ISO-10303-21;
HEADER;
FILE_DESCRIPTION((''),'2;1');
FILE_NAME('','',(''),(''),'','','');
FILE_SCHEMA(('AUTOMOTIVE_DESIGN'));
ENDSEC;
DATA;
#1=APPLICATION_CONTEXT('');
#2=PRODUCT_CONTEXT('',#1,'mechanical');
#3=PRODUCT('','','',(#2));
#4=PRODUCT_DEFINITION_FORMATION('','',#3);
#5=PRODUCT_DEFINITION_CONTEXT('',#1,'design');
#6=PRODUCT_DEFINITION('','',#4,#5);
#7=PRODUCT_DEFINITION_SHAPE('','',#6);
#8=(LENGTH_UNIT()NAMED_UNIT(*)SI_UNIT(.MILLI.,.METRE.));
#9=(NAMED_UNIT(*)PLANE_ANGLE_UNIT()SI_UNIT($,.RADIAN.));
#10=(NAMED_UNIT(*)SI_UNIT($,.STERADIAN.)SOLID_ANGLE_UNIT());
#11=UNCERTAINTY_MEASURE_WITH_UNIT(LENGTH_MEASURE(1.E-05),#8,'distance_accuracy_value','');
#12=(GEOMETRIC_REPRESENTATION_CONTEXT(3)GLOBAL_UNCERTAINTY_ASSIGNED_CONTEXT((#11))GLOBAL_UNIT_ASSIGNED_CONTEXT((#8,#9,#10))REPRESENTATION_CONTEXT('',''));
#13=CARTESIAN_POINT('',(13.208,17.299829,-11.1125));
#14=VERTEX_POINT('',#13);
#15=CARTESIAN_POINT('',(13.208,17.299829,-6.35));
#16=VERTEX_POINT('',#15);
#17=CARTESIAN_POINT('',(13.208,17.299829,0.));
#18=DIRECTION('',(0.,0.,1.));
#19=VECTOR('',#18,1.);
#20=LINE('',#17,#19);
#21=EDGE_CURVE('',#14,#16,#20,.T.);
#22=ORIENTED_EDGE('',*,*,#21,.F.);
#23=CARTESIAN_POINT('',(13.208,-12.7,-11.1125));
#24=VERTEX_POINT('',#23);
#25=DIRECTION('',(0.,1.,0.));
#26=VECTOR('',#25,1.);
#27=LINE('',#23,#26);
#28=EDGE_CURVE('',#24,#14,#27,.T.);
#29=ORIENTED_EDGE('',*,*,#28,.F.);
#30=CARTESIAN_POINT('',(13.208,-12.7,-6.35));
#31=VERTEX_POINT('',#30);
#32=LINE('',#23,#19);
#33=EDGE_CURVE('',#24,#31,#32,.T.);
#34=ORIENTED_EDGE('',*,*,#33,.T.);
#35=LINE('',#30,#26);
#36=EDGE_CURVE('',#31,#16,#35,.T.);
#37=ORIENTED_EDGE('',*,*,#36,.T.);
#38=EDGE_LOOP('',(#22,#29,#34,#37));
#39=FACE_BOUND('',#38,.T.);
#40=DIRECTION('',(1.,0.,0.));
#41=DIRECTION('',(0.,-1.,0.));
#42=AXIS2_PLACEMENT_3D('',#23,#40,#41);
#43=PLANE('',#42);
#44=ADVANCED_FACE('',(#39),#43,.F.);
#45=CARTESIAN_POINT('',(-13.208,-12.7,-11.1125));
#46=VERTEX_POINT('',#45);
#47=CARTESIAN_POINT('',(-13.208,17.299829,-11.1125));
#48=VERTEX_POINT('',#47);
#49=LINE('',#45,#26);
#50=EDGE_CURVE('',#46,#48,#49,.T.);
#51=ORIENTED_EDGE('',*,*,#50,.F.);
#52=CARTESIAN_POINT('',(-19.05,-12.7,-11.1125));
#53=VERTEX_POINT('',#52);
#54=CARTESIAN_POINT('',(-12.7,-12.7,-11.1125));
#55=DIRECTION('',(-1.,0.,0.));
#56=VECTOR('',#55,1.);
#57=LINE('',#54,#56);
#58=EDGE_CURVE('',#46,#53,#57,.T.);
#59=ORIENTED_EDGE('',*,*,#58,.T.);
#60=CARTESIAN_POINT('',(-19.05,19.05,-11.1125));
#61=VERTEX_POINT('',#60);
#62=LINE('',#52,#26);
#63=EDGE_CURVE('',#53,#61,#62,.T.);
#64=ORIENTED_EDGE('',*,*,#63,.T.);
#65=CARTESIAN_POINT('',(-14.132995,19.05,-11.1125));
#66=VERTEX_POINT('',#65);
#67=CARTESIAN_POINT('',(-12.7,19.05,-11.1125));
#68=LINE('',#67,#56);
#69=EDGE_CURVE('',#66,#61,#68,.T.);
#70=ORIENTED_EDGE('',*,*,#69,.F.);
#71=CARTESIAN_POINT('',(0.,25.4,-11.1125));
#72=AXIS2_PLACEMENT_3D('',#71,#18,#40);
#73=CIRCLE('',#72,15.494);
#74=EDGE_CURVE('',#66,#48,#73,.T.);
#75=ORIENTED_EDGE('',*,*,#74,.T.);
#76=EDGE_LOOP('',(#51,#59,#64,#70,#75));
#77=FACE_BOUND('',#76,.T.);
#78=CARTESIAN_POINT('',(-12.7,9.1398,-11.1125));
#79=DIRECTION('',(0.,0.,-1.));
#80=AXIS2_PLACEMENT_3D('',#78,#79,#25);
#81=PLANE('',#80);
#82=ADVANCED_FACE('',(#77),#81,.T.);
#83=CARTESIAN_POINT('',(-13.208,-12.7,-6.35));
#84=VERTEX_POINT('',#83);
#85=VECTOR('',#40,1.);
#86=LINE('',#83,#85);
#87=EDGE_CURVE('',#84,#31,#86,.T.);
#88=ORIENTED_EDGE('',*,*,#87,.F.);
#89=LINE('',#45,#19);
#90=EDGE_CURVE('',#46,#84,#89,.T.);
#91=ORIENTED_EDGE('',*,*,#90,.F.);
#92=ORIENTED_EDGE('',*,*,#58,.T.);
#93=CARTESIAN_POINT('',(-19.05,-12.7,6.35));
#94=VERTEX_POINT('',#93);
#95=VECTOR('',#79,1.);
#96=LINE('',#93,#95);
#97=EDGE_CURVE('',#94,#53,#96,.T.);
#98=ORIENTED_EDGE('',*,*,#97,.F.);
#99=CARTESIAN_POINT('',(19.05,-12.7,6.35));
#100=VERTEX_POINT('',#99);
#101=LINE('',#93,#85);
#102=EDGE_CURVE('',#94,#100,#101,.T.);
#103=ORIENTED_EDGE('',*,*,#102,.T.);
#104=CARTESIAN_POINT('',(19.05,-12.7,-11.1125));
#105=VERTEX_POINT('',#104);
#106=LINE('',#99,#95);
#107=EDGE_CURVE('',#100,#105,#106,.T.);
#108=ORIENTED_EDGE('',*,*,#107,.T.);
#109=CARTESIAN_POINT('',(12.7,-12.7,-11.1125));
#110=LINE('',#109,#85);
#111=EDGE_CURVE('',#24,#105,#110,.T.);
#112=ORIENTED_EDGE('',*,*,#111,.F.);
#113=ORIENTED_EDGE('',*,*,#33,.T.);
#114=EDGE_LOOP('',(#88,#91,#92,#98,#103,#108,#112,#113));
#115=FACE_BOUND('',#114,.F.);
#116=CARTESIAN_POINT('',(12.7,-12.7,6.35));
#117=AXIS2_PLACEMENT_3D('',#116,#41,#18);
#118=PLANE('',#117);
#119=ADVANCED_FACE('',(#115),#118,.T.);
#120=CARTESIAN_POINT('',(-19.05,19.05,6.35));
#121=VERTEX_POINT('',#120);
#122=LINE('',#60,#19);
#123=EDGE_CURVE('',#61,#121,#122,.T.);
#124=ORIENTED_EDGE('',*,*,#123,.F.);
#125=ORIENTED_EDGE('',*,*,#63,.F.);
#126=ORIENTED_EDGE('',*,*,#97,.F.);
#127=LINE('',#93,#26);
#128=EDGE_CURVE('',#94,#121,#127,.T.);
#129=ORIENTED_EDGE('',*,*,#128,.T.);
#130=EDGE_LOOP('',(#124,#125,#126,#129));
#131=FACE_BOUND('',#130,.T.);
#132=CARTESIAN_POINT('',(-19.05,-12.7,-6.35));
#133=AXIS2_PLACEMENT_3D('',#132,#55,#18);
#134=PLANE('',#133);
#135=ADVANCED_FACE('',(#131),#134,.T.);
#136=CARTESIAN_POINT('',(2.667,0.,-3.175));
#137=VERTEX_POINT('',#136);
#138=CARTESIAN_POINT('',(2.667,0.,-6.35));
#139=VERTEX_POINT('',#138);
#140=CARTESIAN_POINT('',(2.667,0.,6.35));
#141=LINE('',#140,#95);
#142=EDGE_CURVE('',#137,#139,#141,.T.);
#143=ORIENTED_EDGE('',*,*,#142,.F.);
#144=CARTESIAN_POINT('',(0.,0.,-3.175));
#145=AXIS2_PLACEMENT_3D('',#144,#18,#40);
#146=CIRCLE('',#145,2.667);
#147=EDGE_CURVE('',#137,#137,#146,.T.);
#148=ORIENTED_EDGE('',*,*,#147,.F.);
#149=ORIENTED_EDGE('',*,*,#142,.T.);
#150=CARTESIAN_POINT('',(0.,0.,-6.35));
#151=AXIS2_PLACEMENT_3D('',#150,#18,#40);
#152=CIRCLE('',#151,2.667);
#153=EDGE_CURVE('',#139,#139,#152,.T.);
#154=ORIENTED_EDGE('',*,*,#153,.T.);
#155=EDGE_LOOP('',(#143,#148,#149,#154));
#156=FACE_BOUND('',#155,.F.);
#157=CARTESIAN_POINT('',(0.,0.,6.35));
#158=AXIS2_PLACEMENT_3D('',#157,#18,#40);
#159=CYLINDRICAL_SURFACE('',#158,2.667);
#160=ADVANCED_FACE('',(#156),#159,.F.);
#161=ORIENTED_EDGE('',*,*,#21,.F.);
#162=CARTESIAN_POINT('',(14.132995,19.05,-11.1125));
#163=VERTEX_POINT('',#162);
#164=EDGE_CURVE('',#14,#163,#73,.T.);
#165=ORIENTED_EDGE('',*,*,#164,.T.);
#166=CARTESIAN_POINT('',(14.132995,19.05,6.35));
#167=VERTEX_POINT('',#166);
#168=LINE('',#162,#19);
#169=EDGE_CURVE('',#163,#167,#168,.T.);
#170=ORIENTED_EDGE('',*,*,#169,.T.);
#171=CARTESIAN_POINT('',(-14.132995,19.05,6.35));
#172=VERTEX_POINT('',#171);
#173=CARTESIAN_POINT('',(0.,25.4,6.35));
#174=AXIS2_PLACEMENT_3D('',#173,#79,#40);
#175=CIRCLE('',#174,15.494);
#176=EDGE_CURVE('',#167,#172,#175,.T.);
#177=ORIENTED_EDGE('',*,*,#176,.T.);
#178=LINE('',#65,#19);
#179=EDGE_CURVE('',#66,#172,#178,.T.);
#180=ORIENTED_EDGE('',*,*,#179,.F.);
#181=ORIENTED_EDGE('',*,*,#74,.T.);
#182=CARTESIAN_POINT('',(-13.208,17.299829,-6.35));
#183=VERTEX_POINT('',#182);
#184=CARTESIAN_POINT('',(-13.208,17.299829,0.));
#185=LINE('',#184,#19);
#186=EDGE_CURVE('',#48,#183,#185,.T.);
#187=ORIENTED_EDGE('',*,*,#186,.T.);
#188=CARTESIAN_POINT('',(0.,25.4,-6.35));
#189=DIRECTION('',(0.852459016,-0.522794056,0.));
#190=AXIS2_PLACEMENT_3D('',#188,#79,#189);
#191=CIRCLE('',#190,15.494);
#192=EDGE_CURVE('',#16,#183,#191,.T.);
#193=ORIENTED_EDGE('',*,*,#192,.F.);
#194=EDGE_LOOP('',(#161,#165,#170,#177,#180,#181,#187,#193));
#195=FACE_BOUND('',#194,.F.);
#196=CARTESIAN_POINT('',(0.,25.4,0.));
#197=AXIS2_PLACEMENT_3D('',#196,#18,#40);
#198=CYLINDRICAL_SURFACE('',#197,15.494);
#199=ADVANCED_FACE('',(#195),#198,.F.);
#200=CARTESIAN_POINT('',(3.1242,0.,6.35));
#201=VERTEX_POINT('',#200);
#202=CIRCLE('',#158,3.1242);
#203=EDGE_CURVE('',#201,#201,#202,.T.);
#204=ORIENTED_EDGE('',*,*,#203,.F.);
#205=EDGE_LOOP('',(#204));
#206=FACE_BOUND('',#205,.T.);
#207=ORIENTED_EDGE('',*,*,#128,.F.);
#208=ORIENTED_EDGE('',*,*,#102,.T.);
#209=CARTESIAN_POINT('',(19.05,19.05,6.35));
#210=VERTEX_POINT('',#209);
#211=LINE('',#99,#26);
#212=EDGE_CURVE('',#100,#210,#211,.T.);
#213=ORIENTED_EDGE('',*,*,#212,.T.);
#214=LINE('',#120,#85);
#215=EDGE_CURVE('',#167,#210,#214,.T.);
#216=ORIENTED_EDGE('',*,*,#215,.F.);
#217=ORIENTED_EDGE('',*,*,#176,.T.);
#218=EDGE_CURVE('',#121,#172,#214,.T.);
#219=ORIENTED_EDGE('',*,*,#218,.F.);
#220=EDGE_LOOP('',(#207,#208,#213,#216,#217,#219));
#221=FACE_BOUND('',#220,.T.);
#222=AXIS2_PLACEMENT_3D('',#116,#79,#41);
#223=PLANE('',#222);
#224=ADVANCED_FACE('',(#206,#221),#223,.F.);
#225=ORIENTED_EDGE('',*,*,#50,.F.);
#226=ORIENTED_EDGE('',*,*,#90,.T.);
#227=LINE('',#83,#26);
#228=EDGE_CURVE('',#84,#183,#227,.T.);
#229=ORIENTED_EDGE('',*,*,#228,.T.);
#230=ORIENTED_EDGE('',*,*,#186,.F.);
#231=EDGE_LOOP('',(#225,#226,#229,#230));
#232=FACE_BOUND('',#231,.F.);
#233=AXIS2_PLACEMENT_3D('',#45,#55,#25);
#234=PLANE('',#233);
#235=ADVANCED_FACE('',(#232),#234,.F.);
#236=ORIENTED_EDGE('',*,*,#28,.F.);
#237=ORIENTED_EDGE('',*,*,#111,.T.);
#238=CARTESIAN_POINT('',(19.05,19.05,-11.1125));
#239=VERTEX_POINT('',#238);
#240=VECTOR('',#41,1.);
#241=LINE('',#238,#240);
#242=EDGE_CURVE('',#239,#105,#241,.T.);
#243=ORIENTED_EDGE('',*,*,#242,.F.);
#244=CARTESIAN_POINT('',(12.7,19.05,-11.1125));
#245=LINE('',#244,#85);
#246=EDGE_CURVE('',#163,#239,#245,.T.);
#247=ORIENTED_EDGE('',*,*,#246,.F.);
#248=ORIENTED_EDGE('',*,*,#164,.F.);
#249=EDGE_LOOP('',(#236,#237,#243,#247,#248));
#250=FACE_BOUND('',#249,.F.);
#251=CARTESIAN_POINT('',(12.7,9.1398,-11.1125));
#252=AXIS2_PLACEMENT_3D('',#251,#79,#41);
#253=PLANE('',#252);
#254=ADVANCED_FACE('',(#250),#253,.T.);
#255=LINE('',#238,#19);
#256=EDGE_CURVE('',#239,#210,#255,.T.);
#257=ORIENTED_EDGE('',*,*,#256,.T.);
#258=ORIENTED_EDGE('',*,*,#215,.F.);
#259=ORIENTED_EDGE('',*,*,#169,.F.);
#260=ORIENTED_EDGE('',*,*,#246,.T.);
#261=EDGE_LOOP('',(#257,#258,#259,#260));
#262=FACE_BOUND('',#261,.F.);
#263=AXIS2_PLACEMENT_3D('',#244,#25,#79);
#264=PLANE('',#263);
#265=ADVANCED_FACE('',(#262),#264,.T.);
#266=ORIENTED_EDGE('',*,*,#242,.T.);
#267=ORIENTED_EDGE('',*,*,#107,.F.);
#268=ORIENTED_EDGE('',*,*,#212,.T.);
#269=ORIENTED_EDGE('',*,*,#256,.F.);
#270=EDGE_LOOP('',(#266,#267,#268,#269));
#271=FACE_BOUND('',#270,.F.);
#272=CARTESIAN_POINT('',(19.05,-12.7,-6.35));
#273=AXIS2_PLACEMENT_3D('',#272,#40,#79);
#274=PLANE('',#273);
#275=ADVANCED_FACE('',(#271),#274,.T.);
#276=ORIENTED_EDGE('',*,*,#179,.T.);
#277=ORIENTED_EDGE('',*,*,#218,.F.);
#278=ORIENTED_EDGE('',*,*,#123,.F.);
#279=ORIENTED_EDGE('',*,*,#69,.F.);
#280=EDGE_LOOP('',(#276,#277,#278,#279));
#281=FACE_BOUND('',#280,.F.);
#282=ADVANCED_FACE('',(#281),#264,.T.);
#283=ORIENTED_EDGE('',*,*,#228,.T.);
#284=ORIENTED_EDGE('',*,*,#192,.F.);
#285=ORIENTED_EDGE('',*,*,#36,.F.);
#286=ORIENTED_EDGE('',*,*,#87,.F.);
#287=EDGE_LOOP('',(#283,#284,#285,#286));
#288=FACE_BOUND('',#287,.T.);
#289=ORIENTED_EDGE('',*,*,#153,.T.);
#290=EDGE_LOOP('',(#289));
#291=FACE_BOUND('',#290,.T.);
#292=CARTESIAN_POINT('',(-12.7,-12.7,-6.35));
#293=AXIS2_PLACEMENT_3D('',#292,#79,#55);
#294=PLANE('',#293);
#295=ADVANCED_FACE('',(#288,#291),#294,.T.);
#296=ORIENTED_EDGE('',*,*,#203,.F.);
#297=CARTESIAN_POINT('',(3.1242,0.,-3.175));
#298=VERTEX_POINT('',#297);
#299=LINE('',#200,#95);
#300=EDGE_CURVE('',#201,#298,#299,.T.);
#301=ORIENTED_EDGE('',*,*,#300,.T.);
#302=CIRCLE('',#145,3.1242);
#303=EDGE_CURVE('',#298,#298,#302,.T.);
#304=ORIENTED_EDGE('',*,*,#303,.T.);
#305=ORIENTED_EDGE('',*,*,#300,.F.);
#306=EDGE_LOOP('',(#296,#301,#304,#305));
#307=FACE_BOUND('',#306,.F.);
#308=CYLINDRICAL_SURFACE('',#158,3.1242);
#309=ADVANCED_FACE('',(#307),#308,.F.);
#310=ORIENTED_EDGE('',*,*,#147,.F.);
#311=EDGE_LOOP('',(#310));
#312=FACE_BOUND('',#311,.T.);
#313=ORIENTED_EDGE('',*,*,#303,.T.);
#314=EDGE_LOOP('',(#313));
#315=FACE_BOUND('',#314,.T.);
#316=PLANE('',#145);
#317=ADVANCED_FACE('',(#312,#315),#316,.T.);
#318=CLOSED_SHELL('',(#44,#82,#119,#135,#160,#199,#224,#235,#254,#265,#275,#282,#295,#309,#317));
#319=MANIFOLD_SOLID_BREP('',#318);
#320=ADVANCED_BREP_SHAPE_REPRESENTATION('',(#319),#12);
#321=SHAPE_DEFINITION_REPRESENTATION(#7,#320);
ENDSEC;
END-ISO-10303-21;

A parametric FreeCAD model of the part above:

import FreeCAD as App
import Part
import Sketcher
from FreeCAD import Vector
Q = App.Units.Quantity


def add_polygon(sketch, points):
    """Adds a closed chain of lines whose ends are joined by coincident constraints."""
    first, n = sketch.GeometryCount, len(points)
    for a, b in zip(points, points[1:] + points[:1]):
        sketch.addGeometry(Part.LineSegment(App.Vector(*a, 0), App.Vector(*b, 0)), False)
    for i in range(n):
        sketch.addConstraint(Sketcher.Constraint("Coincident", first + i, 2, first + (i + 1) % n, 1))

doc = App.newDocument("Part")
body = doc.addObject("PartDesign::Body", "Body")

sketch1 = body.newObject("Sketcher::SketchObject", "Sketch")
sketch1.AttachmentSupport = (doc.getObject("XY_Plane"), [""])
sketch1.MapMode = "FlatFace"
add_polygon(sketch1, [(-13, 19), (-13, -19), (13, -19), (13, 19)])
sketch1.addConstraint([
    Sketcher.Constraint("Vertical", 0),
    Sketcher.Constraint("Horizontal", 1),
    Sketcher.Constraint("Vertical", 2),
    Sketcher.Constraint("Horizontal", 3),
    Sketcher.Constraint("Symmetric", 0, 2, 2, 2, -1, 1),
    Sketcher.Constraint("DistanceX", 1, 1, 1, 2, Q("1 in")),
    Sketcher.Constraint("DistanceY", 0, 2, 0, 1, Q("1.5 in")),
])
pad1 = body.newObject("PartDesign::Pad", "Pad")
pad1.Profile = sketch1
pad1.Length = Q("0.5 in")
pad1.Midplane = True

sketch2 = body.newObject("Sketcher::SketchObject", "Sketch001")
sketch2.AttachmentSupport = (doc.getObject("XY_Plane"), [""])
sketch2.MapMode = "FlatFace"
sketch2.AttachmentOffset = App.Placement(Vector(0, 0, 0.25 * 25.4), App.Rotation())
sketch2.addGeometry(Part.Circle(Vector(0, 0, 0), Vector(0, 0, 1), 2.7), False)
sketch2.addConstraint([
    Sketcher.Constraint("Coincident", 0, 3, -1, 1),
    Sketcher.Constraint("Diameter", 0, Q("0.21 in")),
])
pocket1 = body.newObject("PartDesign::Pocket", "Pocket")
pocket1.Profile = sketch2
pocket1.Type = "ThroughAll"

sketch3 = body.newObject("Sketcher::SketchObject", "Sketch002")
sketch3.AttachmentSupport = (doc.getObject("YZ_Plane"), [""])
sketch3.MapMode = "FlatFace"
sketch3.AttachmentOffset = App.Placement(Vector(0, 0, -0.5 * 25.4), App.Rotation())
add_polygon(sketch3, [(-13, 6), (-13, -6), (-19, -6), (-19, 6)])
sketch3.addConstraint([
    Sketcher.Constraint("Vertical", 0),
    Sketcher.Constraint("Horizontal", 1),
    Sketcher.Constraint("Vertical", 2),
    Sketcher.Constraint("Horizontal", 3),
    Sketcher.Constraint("DistanceX", 1, 2, 1, 1, Q("0.25 in")),
    Sketcher.Constraint("DistanceY", 0, 2, -1, 1, Q("0.25 in")),
    Sketcher.Constraint("DistanceY", -1, 1, 2, 2, Q("0.25 in")),
    Sketcher.Constraint("DistanceX", 0, 2, -1, 1, Q("0.5 in")),
])
pocket2 = body.newObject("PartDesign::Pocket", "Pocket001")
pocket2.Profile = sketch3
pocket2.Type = "ThroughAll"
pocket2.Reversed = True

sketch4 = body.newObject("Sketcher::SketchObject", "Sketch003")
sketch4.AttachmentSupport = (doc.getObject("YZ_Plane"), [""])
sketch4.MapMode = "FlatFace"
sketch4.AttachmentOffset = App.Placement(Vector(0, 0, -0.5 * 25.4), App.Rotation())
add_polygon(sketch4, [(19, -11), (-13, -11), (-13, 6), (19, 6)])
sketch4.addConstraint([
    Sketcher.Constraint("Horizontal", 0),
    Sketcher.Constraint("Vertical", 1),
    Sketcher.Constraint("Horizontal", 2),
    Sketcher.Constraint("Vertical", 3),
    Sketcher.Constraint("DistanceX", 0, 2, 0, 1, Q("1.25 in")),
    Sketcher.Constraint("DistanceX", 0, 2, -1, 1, Q("0.5 in")),
    Sketcher.Constraint("DistanceY", 1, 1, 1, 2, Q("0.6875 in")),
    Sketcher.Constraint("DistanceY", -1, 1, 1, 2, Q("0.25 in")),
])
pad2 = body.newObject("PartDesign::Pad", "Pad001")
pad2.Profile = sketch4
pad2.Length = Q("0.25 in")
pad2.Reversed = True
doc.recompute()

mirrored = body.newObject("PartDesign::Mirrored", "Mirrored")
mirrored.Originals = [pad2]
mirrored.MirrorPlane = (doc.getObject("YZ_Plane"), [""])
body.Tip = mirrored

sketch5 = body.newObject("Sketcher::SketchObject", "Sketch004")
sketch5.AttachmentSupport = (doc.getObject("XY_Plane"), [""])
sketch5.MapMode = "FlatFace"
sketch5.addGeometry(Part.Circle(Vector(0, 25, 0), Vector(0, 0, 1), 15), False)
sketch5.addConstraint([
    Sketcher.Constraint("PointOnObject", 0, 3, -2),
    Sketcher.Constraint("Diameter", 0, Q("1.22 in")),
    Sketcher.Constraint("DistanceY", -1, 1, 0, 3, Q("1 in")),
])
pocket3 = body.newObject("PartDesign::Pocket", "Pocket002")
pocket3.Profile = sketch5
pocket3.Type = "ThroughAll"
pocket3.Midplane = True

sketch6 = body.newObject("Sketcher::SketchObject", "Sketch005")
sketch6.AttachmentSupport = (doc.getObject("XY_Plane"), [""])
sketch6.MapMode = "FlatFace"
sketch6.AttachmentOffset = App.Placement(Vector(0, 0, 0.25 * 25.4), App.Rotation())
sketch6.addGeometry(Part.Circle(Vector(0, 0, 0), Vector(0, 0, 1), 3.1), False)
sketch6.addConstraint([
    Sketcher.Constraint("Coincident", 0, 3, -1, 1),
    Sketcher.Constraint("Diameter", 0, Q("0.246 in")),
])
pocket4 = body.newObject("PartDesign::Pocket", "Pocket003")
pocket4.Profile = sketch6
pocket4.Length = Q("0.375 in")

sketch7 = body.newObject("Sketcher::SketchObject", "Sketch006")
sketch7.AttachmentSupport = (doc.getObject("XY_Plane"), [""])
sketch7.MapMode = "FlatFace"
sketch7.AttachmentOffset = App.Placement(Vector(0, 0, -0.4375 * 25.4), App.Rotation())
add_polygon(sketch7, [(-12.7, 24.3), (-12.7, -12.7), (-13.2, -12.7), (-13.2, 24.3)])
sketch7.addConstraint([
    Sketcher.Constraint("Vertical", 0),
    Sketcher.Constraint("Horizontal", 1),
    Sketcher.Constraint("Vertical", 2),
    Sketcher.Constraint("Horizontal", 3),
    Sketcher.Constraint("DistanceX", 1, 2, 1, 1, Q("0.02 in")),
    Sketcher.Constraint("DistanceX", 0, 2, -1, 1, Q("0.5 in")),
    Sketcher.Constraint("DistanceY", 0, 2, -1, 1, Q("0.5 in")),
    Sketcher.Constraint("DistanceY", 0, 2, 0, 1, Q("36.9717 mm")),
])
pocket5 = body.newObject("PartDesign::Pocket", "Pocket004")
pocket5.Profile = sketch7
pocket5.Length = Q("0.1875 in")
pocket5.Reversed = True
doc.recompute()

mirrored2 = body.newObject("PartDesign::Mirrored", "Mirrored001")
mirrored2.Originals = [pocket5]
mirrored2.MirrorPlane = (doc.getObject("YZ_Plane"), [""])
body.Tip = mirrored2

doc.recompute()
